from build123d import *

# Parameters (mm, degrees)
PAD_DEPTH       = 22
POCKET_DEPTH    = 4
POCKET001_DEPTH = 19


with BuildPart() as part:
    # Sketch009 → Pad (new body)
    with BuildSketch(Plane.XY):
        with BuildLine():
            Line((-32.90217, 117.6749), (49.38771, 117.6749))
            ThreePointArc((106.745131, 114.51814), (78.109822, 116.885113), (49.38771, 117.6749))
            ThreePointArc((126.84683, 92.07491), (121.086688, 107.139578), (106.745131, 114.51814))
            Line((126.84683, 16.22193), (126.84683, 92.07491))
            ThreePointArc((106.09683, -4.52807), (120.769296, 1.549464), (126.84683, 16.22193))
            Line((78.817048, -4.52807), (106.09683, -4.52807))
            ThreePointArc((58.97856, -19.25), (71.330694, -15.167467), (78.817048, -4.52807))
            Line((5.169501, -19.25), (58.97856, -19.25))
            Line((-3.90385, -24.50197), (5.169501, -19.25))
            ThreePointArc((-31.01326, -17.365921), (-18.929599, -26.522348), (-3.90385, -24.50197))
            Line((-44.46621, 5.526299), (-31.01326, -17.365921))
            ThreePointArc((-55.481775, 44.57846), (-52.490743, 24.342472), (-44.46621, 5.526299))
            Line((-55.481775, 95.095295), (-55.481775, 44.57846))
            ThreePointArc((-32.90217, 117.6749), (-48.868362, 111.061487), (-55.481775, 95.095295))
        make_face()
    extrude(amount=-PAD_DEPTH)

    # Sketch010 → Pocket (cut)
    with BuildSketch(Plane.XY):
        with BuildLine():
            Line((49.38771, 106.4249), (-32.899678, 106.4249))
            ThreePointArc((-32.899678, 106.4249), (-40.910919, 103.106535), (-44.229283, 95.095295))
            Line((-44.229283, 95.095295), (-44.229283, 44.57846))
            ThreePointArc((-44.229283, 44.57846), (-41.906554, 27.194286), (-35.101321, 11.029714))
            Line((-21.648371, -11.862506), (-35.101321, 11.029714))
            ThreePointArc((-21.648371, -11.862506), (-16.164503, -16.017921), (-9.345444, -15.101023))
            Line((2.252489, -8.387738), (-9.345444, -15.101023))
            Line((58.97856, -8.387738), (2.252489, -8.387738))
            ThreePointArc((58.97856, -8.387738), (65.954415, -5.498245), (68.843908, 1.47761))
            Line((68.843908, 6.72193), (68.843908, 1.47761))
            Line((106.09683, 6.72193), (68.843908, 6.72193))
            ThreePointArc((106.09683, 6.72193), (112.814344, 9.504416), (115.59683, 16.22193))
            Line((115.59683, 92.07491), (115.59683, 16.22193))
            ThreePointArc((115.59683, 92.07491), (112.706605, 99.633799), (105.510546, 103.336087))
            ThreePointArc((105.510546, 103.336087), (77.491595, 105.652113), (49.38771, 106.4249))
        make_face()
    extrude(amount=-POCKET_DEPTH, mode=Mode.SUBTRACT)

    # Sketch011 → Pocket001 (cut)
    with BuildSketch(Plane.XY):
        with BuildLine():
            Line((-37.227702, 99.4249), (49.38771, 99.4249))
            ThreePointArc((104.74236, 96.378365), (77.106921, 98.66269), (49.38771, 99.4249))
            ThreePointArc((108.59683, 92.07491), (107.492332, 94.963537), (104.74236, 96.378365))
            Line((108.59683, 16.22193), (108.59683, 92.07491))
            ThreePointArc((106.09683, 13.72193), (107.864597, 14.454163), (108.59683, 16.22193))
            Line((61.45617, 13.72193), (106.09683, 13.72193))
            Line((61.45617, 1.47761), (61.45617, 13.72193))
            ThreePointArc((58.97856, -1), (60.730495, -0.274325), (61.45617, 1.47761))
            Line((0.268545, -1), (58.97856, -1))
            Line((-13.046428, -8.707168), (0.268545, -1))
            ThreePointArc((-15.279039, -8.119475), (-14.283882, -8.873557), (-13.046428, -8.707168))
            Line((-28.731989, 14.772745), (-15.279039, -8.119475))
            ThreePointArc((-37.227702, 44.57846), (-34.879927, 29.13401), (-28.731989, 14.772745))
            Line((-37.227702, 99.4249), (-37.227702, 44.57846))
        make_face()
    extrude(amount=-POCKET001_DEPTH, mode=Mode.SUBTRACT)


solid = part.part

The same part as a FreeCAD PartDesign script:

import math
import FreeCAD as App
import Part
import Sketcher
Q = App.Units.Quantity

doc = App.newDocument("Part")
body = doc.addObject("PartDesign::Body", "Body")

# Sketch on XY plane
sketch1 = body.newObject("Sketcher::SketchObject", "Sketch")
sketch1.AttachmentSupport = (doc.getObject("XY_Plane"), [""])
sketch1.MapMode = "FlatFace"
sketch1.addGeometry(Part.LineSegment(App.Vector(49.38771, 117.6749, 0), App.Vector(-32.90217, 117.6749, 0)), False)
sketch1.addGeometry(Part.ArcOfCircle(Part.Circle(App.Vector(-32.902171, 95.095296, 0), App.Vector(0, 0, 1), 22.579604), math.radians(89.999998), math.radians(180.000002)), False)
sketch1.addGeometry(Part.LineSegment(App.Vector(-55.481775, 95.095295, 0), App.Vector(-55.481775, 44.57846, 0)), False)
sketch1.addGeometry(Part.ArcOfCircle(Part.Circle(App.Vector(24.513684, 46.063351, 0), App.Vector(0, 0, 1), 80.009239), math.radians(-178.936587), math.radians(-149.558747)), False)
sketch1.addGeometry(Part.LineSegment(App.Vector(-44.46621, 5.526299, 0), App.Vector(-31.01326, -17.365921, 0)), False)
sketch1.addGeometry(Part.ArcOfCircle(Part.Circle(App.Vector(-13.866944, -7.289637, 0), App.Vector(0, 0, 1), 19.887877), math.radians(-149.558751), math.radians(-59.936257)), False)
sketch1.addGeometry(Part.LineSegment(App.Vector(-3.90385, -24.50197, 0), App.Vector(5.169501, -19.25, 0)), False)
sketch1.addGeometry(Part.LineSegment(App.Vector(5.169501, -19.25, 0), App.Vector(58.97856, -19.25, 0)), False)
sketch1.addGeometry(Part.ArcOfCircle(Part.Circle(App.Vector(58.978559, 1.47761, 0), App.Vector(0, 0, 1), 20.72761), math.radians(-89.999998), math.radians(-16.842571)), False)
sketch1.addGeometry(Part.LineSegment(App.Vector(78.817048, -4.52807, 0), App.Vector(106.09683, -4.52807, 0)), False)
sketch1.addGeometry(Part.ArcOfCircle(Part.Circle(App.Vector(106.096831, 16.221929, 0), App.Vector(0, 0, 1), 20.749999), math.radians(-90.000003), math.radians(0.000003)), False)
sketch1.addGeometry(Part.LineSegment(App.Vector(126.84683, 16.22193, 0), App.Vector(126.84683, 92.07491, 0)), False)
sketch1.addGeometry(Part.ArcOfCircle(Part.Circle(App.Vector(104.267223, 92.074909, 0), App.Vector(0, 0, 1), 22.579607), math.radians(0.000002), math.radians(83.699617)), False)
sketch1.addGeometry(Part.ArcOfCircle(Part.Circle(App.Vector(49.3877, -404.987587, 0), App.Vector(0, 0, 1), 522.662487), math.radians(83.699622), math.radians(89.999999)), False)
sketch1.addConstraint(Sketcher.Constraint("Coincident", 0, 2, 1, 1))
sketch1.addConstraint(Sketcher.Constraint("Coincident", 1, 2, 2, 1))
sketch1.addConstraint(Sketcher.Constraint("Coincident", 2, 2, 3, 1))
sketch1.addConstraint(Sketcher.Constraint("Coincident", 3, 2, 4, 1))
sketch1.addConstraint(Sketcher.Constraint("Coincident", 4, 2, 5, 1))
sketch1.addConstraint(Sketcher.Constraint("Coincident", 5, 2, 6, 1))
sketch1.addConstraint(Sketcher.Constraint("Coincident", 6, 2, 7, 1))
sketch1.addConstraint(Sketcher.Constraint("Coincident", 7, 2, 8, 1))
sketch1.addConstraint(Sketcher.Constraint("Coincident", 8, 2, 9, 1))
sketch1.addConstraint(Sketcher.Constraint("Coincident", 9, 2, 10, 1))
sketch1.addConstraint(Sketcher.Constraint("Coincident", 10, 2, 11, 1))
sketch1.addConstraint(Sketcher.Constraint("Coincident", 11, 2, 12, 1))
sketch1.addConstraint(Sketcher.Constraint("Coincident", 12, 2, 13, 1))
sketch1.addConstraint(Sketcher.Constraint("Coincident", 13, 2, 0, 1))
sketch1.addConstraint(Sketcher.Constraint("Horizontal", 0))
sketch1.addConstraint(Sketcher.Constraint("Vertical", 2))
sketch1.addConstraint(Sketcher.Constraint("Horizontal", 7))
sketch1.addConstraint(Sketcher.Constraint("Horizontal", 9))
sketch1.addConstraint(Sketcher.Constraint("Vertical", 11))
sketch1.addConstraint(Sketcher.Constraint("Radius", 10, Q("20.749999 mm")))
sketch1.addConstraint(Sketcher.Constraint("DistanceY", 6, 2, -1, 1, Q("19.25 mm")))
sketch1.addConstraint(Sketcher.Constraint("Radius", 3, Q("80.009239 mm")))
sketch1.addConstraint(Sketcher.Constraint("Radius", 8, Q("20.72761 mm")))
sketch1.addConstraint(Sketcher.Constraint("DistanceX", 9, 2, 10, 2, Q("20.75 mm")))
sketch1.addConstraint(Sketcher.Constraint("DistanceY", 9, 2, 10, 2, Q("20.75 mm")))
sketch1.addConstraint(Sketcher.Constraint("Radius", 1, Q("22.579604 mm")))
sketch1.addConstraint(Sketcher.Constraint("Radius", 5, Q("19.887877 mm")))
sketch1.addConstraint(Sketcher.Constraint("Radius", 12, Q("22.579607 mm")))
sketch1.addConstraint(Sketcher.Constraint("Radius", 13, Q("522.662487 mm")))
sketch1.addConstraint(Sketcher.Constraint("DistanceX", 1, 3, 10, 3, Q("138.999002 mm")))
sketch1.addConstraint(Sketcher.Constraint("DistanceX", 0, 2, 0, 1, Q("82.28988 mm")))
sketch1.addConstraint(Sketcher.Constraint("DistanceX", 7, 1, 7, 2, Q("53.809059 mm")))
sketch1.addConstraint(Sketcher.Constraint("DistanceX", 9, 1, 9, 2, Q("27.279782 mm")))
sketch1.addConstraint(Sketcher.Constraint("DistanceY", 11, 1, 11, 2, Q("75.85298 mm")))
sketch1.addConstraint(Sketcher.Constraint("DistanceX", -1, 1, 13, 3, Q("49.3877 mm")))
sketch1.addConstraint(Sketcher.Constraint("DistanceY", -1, 1, 0, 2, Q("117.6749 mm")))
sketch1.addConstraint(Sketcher.Constraint("DistanceY", -1, 1, 3, 2, Q("5.526299 mm")))
sketch1.addConstraint(Sketcher.Constraint("DistanceX", -1, 1, 6, 2, Q("5.169501 mm")))
sketch1.addConstraint(Sketcher.Constraint("DistanceY", 8, 3, 12, 3, Q("90.597299 mm")))
sketch1.addConstraint(Sketcher.Constraint("DistanceX", 12, 2, 11, 2, Q("20.101699 mm")))
sketch1.addConstraint(Sketcher.Constraint("DistanceY", 2, 2, 2, 1, Q("50.516835 mm")))
sketch1.addConstraint(Sketcher.Constraint("DistanceY", -1, 1, 3, 3, Q("46.063351 mm")))
sketch1.addConstraint(Sketcher.Constraint("DistanceX", -1, 1, 8, 3, Q("58.978559 mm")))
sketch1.addConstraint(Sketcher.Constraint("DistanceX", 0, 2, -1, 1, Q("32.90217 mm")))
sketch1.addConstraint(Sketcher.Constraint("DistanceY", -1, 1, 2, 2, Q("44.57846 mm")))
sketch1.addConstraint(Sketcher.Constraint("DistanceX", 4, 2, -1, 1, Q("31.01326 mm")))
sketch1.addConstraint(Sketcher.Constraint("DistanceY", 4, 2, -1, 1, Q("17.365921 mm")))
sketch1.addConstraint(Sketcher.Constraint("DistanceX", 5, 2, -1, 1, Q("3.90385 mm")))
sketch1.addConstraint(Sketcher.Constraint("DistanceY", 5, 2, -1, 1, Q("24.50197 mm")))
pad1 = body.newObject("PartDesign::Pad", "Pad")
pad1.Profile = sketch1
pad1.Length = 22
pad1.Reversed = True

# Sketch on XY plane
sketch2 = body.newObject("Sketcher::SketchObject", "Sketch001")
sketch2.AttachmentSupport = (doc.getObject("XY_Plane"), [""])
sketch2.MapMode = "FlatFace"
sketch2.addGeometry(Part.LineSegment(App.Vector(49.38771, 106.4249, 0), App.Vector(-32.899678, 106.4249, 0)), False)
sketch2.addGeometry(Part.ArcOfCircle(Part.Circle(App.Vector(-32.899678, 95.095295, 0), App.Vector(0, 0, 1), 11.329605), math.radians(90), math.radians(180)), False)
sketch2.addGeometry(Part.LineSegment(App.Vector(-44.229283, 95.095295, 0), App.Vector(-44.229283, 44.57846, 0)), False)
sketch2.addGeometry(Part.ArcOfCircle(Part.Circle(App.Vector(21.986931, 44.578462, 0), App.Vector(0, 0, 1), 66.216214), math.radians(-179.999998), math.radians(-149.558752)), False)
sketch2.addGeometry(Part.LineSegment(App.Vector(-35.101321, 11.029714, 0), App.Vector(-21.648371, -11.862506, 0)), False)
sketch2.addGeometry(Part.ArcOfCircle(Part.Circle(App.Vector(-13.866945, -7.289636, 0), App.Vector(0, 0, 1), 9.025616), math.radians(-149.558745), math.radians(-59.936261)), False)
sketch2.addGeometry(Part.LineSegment(App.Vector(-9.345444, -15.101023, 0), App.Vector(2.252489, -8.387738, 0)), False)
sketch2.addGeometry(Part.LineSegment(App.Vector(2.252489, -8.387738, 0), App.Vector(58.97856, -8.387738, 0)), False)
sketch2.addGeometry(Part.ArcOfCircle(Part.Circle(App.Vector(58.978562, 1.477608, 0), App.Vector(0, 0, 1), 9.865346), math.radians(-90.000011), math.radians(0.000011)), False)
sketch2.addGeometry(Part.LineSegment(App.Vector(68.843908, 1.47761, 0), App.Vector(68.843908, 6.72193, 0)), False)
sketch2.addGeometry(Part.LineSegment(App.Vector(68.843908, 6.72193, 0), App.Vector(106.09683, 6.72193, 0)), False)
sketch2.addGeometry(Part.ArcOfCircle(Part.Circle(App.Vector(106.096829, 16.221931, 0), App.Vector(0, 0, 1), 9.500001), math.radians(-89.999991), math.radians(-0.000009)), False)
sketch2.addGeometry(Part.LineSegment(App.Vector(115.59683, 16.22193, 0), App.Vector(115.59683, 92.07491, 0)), False)
sketch2.addGeometry(Part.ArcOfCircle(Part.Circle(App.Vector(104.267223, 92.074908, 0), App.Vector(0, 0, 1), 11.329607), math.radians(0.000008), math.radians(83.699612)), False)
sketch2.addGeometry(Part.ArcOfCircle(Part.Circle(App.Vector(49.387714, -404.987261, 0), App.Vector(0, 0, 1), 511.412161), math.radians(83.69962), math.radians(90)), False)
sketch2.addConstraint(Sketcher.Constraint("Tangent", 0, 2, 1, 1))
sketch2.addConstraint(Sketcher.Constraint("Tangent", 1, 2, 2, 1))
sketch2.addConstraint(Sketcher.Constraint("Tangent", 2, 2, 3, 1))
sketch2.addConstraint(Sketcher.Constraint("Tangent", 3, 2, 4, 1))
sketch2.addConstraint(Sketcher.Constraint("Tangent", 4, 2, 5, 1))
sketch2.addConstraint(Sketcher.Constraint("Tangent", 5, 2, 6, 1))
sketch2.addConstraint(Sketcher.Constraint("Coincident", 6, 2, 7, 1))
sketch2.addConstraint(Sketcher.Constraint("Tangent", 7, 2, 8, 1))
sketch2.addConstraint(Sketcher.Constraint("Tangent", 8, 2, 9, 1))
sketch2.addConstraint(Sketcher.Constraint("Coincident", 9, 2, 10, 1))
sketch2.addConstraint(Sketcher.Constraint("Tangent", 10, 2, 11, 1))
sketch2.addConstraint(Sketcher.Constraint("Tangent", 11, 2, 12, 1))
sketch2.addConstraint(Sketcher.Constraint("Tangent", 12, 2, 13, 1))
sketch2.addConstraint(Sketcher.Constraint("Tangent", 13, 2, 14, 1))
sketch2.addConstraint(Sketcher.Constraint("Tangent", 14, 2, 0, 1))
sketch2.addConstraint(Sketcher.Constraint("Horizontal", 0))
sketch2.addConstraint(Sketcher.Constraint("Vertical", 2))
sketch2.addConstraint(Sketcher.Constraint("Horizontal", 7))
sketch2.addConstraint(Sketcher.Constraint("Vertical", 9))
sketch2.addConstraint(Sketcher.Constraint("Horizontal", 10))
sketch2.addConstraint(Sketcher.Constraint("Vertical", 12))
sketch2.addConstraint(Sketcher.Constraint("Equal", 1, 13))
sketch2.addConstraint(Sketcher.Constraint("Radius", 11, Q("9.500001 mm")))
sketch2.addConstraint(Sketcher.Constraint("Radius", 14, Q("511.412161 mm")))
sketch2.addConstraint(Sketcher.Constraint("Radius", 1, Q("11.329605 mm")))
sketch2.addConstraint(Sketcher.Constraint("Radius", 3, Q("66.216214 mm")))
sketch2.addConstraint(Sketcher.Constraint("Radius", 5, Q("9.025616 mm")))
sketch2.addConstraint(Sketcher.Constraint("Radius", 8, Q("9.865346 mm")))
sketch2.addConstraint(Sketcher.Constraint("DistanceX", 7, 1, 7, 2, Q("56.726071 mm")))
sketch2.addConstraint(Sketcher.Constraint("DistanceX", 10, 1, 10, 2, Q("37.252922 mm")))
sketch2.addConstraint(Sketcher.Constraint("DistanceY", 9, 1, 9, 2, Q("5.24432 mm")))
sketch2.addConstraint(Sketcher.Constraint("DistanceY", 12, 1, 12, 2, Q("75.85298 mm")))
sketch2.addConstraint(Sketcher.Constraint("DistanceY", -1, 1, 0, 2, Q("106.4249 mm")))
sketch2.addConstraint(Sketcher.Constraint("DistanceX", 1, 3, 13, 3, Q("137.166901 mm")))
sketch2.addConstraint(Sketcher.Constraint("DistanceX", 5, 3, 5, 2, Q("4.521501 mm")))
sketch2.addConstraint(Sketcher.Constraint("DistanceY", 6, 2, 3, 3, Q("52.9662 mm")))
sketch2.addConstraint(Sketcher.Constraint("DistanceX", 0, 2, 0, 1, Q("82.287388 mm")))
sketch2.addConstraint(Sketcher.Constraint("DistanceX", -1, 1, 3, 3, Q("21.986931 mm")))
sketch2.addConstraint(Sketcher.Constraint("DistanceX", 3, 2, -1, 1, Q("35.101321 mm")))
pocket1 = body.newObject("PartDesign::Pocket", "Pocket")
pocket1.Profile = sketch2
pocket1.Length = 4

# Sketch on XY plane
sketch3 = body.newObject("Sketcher::SketchObject", "Sketch002")
sketch3.AttachmentSupport = (doc.getObject("XY_Plane"), [""])
sketch3.MapMode = "FlatFace"
sketch3.addGeometry(Part.LineSegment(App.Vector(49.38771, 99.4249, 0), App.Vector(-37.227702, 99.4249, 0)), False)
sketch3.addGeometry(Part.LineSegment(App.Vector(-37.227702, 99.4249, 0), App.Vector(-37.227702, 44.57846, 0)), False)
sketch3.addGeometry(Part.ArcOfCircle(Part.Circle(App.Vector(24.513701, 46.063355, 0), App.Vector(0, 0, 1), 61.759256), math.radians(-178.622289), math.radians(-149.558752)), False)
sketch3.addGeometry(Part.LineSegment(App.Vector(-28.731989, 14.772745, 0), App.Vector(-15.279039, -8.119475, 0)), False)
sketch3.addGeometry(Part.ArcOfCircle(Part.Circle(App.Vector(-13.866944, -7.289635, 0), App.Vector(0, 0, 1), 1.637879), math.radians(-149.55869), math.radians(-59.936297)), False)
sketch3.addGeometry(Part.LineSegment(App.Vector(-13.046428, -8.707168, 0), App.Vector(0.268545, -1, 0)), False)
sketch3.addGeometry(Part.LineSegment(App.Vector(0.268545, -1, 0), App.Vector(58.97856, -1, 0)), False)
sketch3.addGeometry(Part.ArcOfCircle(Part.Circle(App.Vector(58.978561, 1.477609, 0), App.Vector(0, 0, 1), 2.477609), math.radians(-90.000013), math.radians(0.000013)), False)
sketch3.addGeometry(Part.LineSegment(App.Vector(61.45617, 1.47761, 0), App.Vector(61.45617, 13.72193, 0)), False)
sketch3.addGeometry(Part.LineSegment(App.Vector(61.45617, 13.72193, 0), App.Vector(106.09683, 13.72193, 0)), False)
sketch3.addGeometry(Part.ArcOfCircle(Part.Circle(App.Vector(106.09683, 16.22193, 0), App.Vector(0, 0, 1), 2.5), math.radians(-90.000004), math.radians(0.000004)), False)
sketch3.addGeometry(Part.LineSegment(App.Vector(108.59683, 16.22193, 0), App.Vector(108.59683, 92.07491, 0)), False)
sketch3.addGeometry(Part.ArcOfCircle(Part.Circle(App.Vector(104.267226, 92.074911, 0), App.Vector(0, 0, 1), 4.329604), math.radians(-0.000008), math.radians(83.699627)), False)
sketch3.addGeometry(Part.ArcOfCircle(Part.Circle(App.Vector(49.387696, -404.987515, 0), App.Vector(0, 0, 1), 504.412415), math.radians(83.699621), math.radians(89.999998)), False)
sketch3.addConstraint(Sketcher.Constraint("Coincident", 0, 2, 1, 1))
sketch3.addConstraint(Sketcher.Constraint("Coincident", 1, 2, 2, 1))
sketch3.addConstraint(Sketcher.Constraint("Coincident", 2, 2, 3, 1))
sketch3.addConstraint(Sketcher.Constraint("Coincident", 3, 2, 4, 1))
sketch3.addConstraint(Sketcher.Constraint("Coincident", 4, 2, 5, 1))
sketch3.addConstraint(Sketcher.Constraint("Coincident", 5, 2, 6, 1))
sketch3.addConstraint(Sketcher.Constraint("Coincident", 6, 2, 7, 1))
sketch3.addConstraint(Sketcher.Constraint("Coincident", 7, 2, 8, 1))
sketch3.addConstraint(Sketcher.Constraint("Coincident", 8, 2, 9, 1))
sketch3.addConstraint(Sketcher.Constraint("Coincident", 9, 2, 10, 1))
sketch3.addConstraint(Sketcher.Constraint("Coincident", 10, 2, 11, 1))
sketch3.addConstraint(Sketcher.Constraint("Coincident", 11, 2, 12, 1))
sketch3.addConstraint(Sketcher.Constraint("Coincident", 12, 2, 13, 1))
sketch3.addConstraint(Sketcher.Constraint("Coincident", 13, 2, 0, 1))
sketch3.addConstraint(Sketcher.Constraint("Horizontal", 0))
sketch3.addConstraint(Sketcher.Constraint("Vertical", 1))
sketch3.addConstraint(Sketcher.Constraint("Horizontal", 6))
sketch3.addConstraint(Sketcher.Constraint("Vertical", 8))
sketch3.addConstraint(Sketcher.Constraint("Horizontal", 9))
sketch3.addConstraint(Sketcher.Constraint("Vertical", 11))
sketch3.addConstraint(Sketcher.Constraint("Radius", 10, Q("2.5 mm")))
sketch3.addConstraint(Sketcher.Constraint("DistanceY", 5, 2, -1, 1, Q("1 mm")))
sketch3.addConstraint(Sketcher.Constraint("DistanceX", 9, 2, 10, 2, Q("2.5 mm")))
sketch3.addConstraint(Sketcher.Constraint("DistanceY", 9, 2, 10, 2, Q("2.5 mm")))
sketch3.addConstraint(Sketcher.Constraint("Radius", 4, Q("1.637879 mm")))
sketch3.addConstraint(Sketcher.Constraint("Radius", 7, Q("2.477609 mm")))
sketch3.addConstraint(Sketcher.Constraint("Radius", 2, Q("61.759256 mm")))
sketch3.addConstraint(Sketcher.Constraint("Radius", 12, Q("4.329604 mm")))
sketch3.addConstraint(Sketcher.Constraint("Radius", 13, Q("504.412415 mm")))
sketch3.addConstraint(Sketcher.Constraint("Distance", 5, Q("15.384698 mm")))
sketch3.addConstraint(Sketcher.Constraint("DistanceX", 0, 2, 0, 1, Q("86.615412 mm")))
sketch3.addConstraint(Sketcher.Constraint("DistanceX", 9, 1, 9, 2, Q("44.64066 mm")))
sketch3.addConstraint(Sketcher.Constraint("DistanceY", 1, 2, 1, 1, Q("54.84644 mm")))
sketch3.addConstraint(Sketcher.Constraint("DistanceY", 8, 1, 8, 2, Q("12.24432 mm")))
sketch3.addConstraint(Sketcher.Constraint("DistanceY", 11, 1, 11, 2, Q("75.85298 mm")))
sketch3.addConstraint(Sketcher.Constraint("DistanceX", -1, 1, 2, 3, Q("24.513701 mm")))
sketch3.addConstraint(Sketcher.Constraint("DistanceY", -1, 1, 0, 2, Q("99.4249 mm")))
sketch3.addConstraint(Sketcher.Constraint("DistanceY", 7, 3, 12, 3, Q("90.597301 mm")))
sketch3.addConstraint(Sketcher.Constraint("DistanceX", 3, 2, 7, 3, Q("74.2576 mm")))
sketch3.addConstraint(Sketcher.Constraint("DistanceX", 6, 1, 6, 2, Q("58.710015 mm")))
sketch3.addConstraint(Sketcher.Constraint("DistanceX", -1, 1, 7, 3, Q("58.978561 mm")))
sketch3.addConstraint(Sketcher.Constraint("DistanceY", -1, 1, 10, 3, Q("16.22193 mm")))
sketch3.addConstraint(Sketcher.Constraint("DistanceX", 2, 2, -1, 1, Q("28.731989 mm")))
sketch3.addConstraint(Sketcher.Constraint("DistanceX", 4, 2, -1, 1, Q("13.046428 mm")))
sketch3.addConstraint(Sketcher.Constraint("DistanceX", -1, 1, 6, 2, Q("58.97856 mm")))
sketch3.addConstraint(Sketcher.Constraint("DistanceX", -1, 1, 12, 2, Q("104.74236 mm")))
sketch3.addConstraint(Sketcher.Constraint("DistanceY", 4, 3, 2, 3, Q("53.352989 mm")))
sketch3.addConstraint(Sketcher.Constraint("DistanceX", 4, 3, 12, 3, Q("118.13417 mm")))
pocket2 = body.newObject("PartDesign::Pocket", "Pocket001")
pocket2.Profile = sketch3
pocket2.Length = 19

doc.recompute()
